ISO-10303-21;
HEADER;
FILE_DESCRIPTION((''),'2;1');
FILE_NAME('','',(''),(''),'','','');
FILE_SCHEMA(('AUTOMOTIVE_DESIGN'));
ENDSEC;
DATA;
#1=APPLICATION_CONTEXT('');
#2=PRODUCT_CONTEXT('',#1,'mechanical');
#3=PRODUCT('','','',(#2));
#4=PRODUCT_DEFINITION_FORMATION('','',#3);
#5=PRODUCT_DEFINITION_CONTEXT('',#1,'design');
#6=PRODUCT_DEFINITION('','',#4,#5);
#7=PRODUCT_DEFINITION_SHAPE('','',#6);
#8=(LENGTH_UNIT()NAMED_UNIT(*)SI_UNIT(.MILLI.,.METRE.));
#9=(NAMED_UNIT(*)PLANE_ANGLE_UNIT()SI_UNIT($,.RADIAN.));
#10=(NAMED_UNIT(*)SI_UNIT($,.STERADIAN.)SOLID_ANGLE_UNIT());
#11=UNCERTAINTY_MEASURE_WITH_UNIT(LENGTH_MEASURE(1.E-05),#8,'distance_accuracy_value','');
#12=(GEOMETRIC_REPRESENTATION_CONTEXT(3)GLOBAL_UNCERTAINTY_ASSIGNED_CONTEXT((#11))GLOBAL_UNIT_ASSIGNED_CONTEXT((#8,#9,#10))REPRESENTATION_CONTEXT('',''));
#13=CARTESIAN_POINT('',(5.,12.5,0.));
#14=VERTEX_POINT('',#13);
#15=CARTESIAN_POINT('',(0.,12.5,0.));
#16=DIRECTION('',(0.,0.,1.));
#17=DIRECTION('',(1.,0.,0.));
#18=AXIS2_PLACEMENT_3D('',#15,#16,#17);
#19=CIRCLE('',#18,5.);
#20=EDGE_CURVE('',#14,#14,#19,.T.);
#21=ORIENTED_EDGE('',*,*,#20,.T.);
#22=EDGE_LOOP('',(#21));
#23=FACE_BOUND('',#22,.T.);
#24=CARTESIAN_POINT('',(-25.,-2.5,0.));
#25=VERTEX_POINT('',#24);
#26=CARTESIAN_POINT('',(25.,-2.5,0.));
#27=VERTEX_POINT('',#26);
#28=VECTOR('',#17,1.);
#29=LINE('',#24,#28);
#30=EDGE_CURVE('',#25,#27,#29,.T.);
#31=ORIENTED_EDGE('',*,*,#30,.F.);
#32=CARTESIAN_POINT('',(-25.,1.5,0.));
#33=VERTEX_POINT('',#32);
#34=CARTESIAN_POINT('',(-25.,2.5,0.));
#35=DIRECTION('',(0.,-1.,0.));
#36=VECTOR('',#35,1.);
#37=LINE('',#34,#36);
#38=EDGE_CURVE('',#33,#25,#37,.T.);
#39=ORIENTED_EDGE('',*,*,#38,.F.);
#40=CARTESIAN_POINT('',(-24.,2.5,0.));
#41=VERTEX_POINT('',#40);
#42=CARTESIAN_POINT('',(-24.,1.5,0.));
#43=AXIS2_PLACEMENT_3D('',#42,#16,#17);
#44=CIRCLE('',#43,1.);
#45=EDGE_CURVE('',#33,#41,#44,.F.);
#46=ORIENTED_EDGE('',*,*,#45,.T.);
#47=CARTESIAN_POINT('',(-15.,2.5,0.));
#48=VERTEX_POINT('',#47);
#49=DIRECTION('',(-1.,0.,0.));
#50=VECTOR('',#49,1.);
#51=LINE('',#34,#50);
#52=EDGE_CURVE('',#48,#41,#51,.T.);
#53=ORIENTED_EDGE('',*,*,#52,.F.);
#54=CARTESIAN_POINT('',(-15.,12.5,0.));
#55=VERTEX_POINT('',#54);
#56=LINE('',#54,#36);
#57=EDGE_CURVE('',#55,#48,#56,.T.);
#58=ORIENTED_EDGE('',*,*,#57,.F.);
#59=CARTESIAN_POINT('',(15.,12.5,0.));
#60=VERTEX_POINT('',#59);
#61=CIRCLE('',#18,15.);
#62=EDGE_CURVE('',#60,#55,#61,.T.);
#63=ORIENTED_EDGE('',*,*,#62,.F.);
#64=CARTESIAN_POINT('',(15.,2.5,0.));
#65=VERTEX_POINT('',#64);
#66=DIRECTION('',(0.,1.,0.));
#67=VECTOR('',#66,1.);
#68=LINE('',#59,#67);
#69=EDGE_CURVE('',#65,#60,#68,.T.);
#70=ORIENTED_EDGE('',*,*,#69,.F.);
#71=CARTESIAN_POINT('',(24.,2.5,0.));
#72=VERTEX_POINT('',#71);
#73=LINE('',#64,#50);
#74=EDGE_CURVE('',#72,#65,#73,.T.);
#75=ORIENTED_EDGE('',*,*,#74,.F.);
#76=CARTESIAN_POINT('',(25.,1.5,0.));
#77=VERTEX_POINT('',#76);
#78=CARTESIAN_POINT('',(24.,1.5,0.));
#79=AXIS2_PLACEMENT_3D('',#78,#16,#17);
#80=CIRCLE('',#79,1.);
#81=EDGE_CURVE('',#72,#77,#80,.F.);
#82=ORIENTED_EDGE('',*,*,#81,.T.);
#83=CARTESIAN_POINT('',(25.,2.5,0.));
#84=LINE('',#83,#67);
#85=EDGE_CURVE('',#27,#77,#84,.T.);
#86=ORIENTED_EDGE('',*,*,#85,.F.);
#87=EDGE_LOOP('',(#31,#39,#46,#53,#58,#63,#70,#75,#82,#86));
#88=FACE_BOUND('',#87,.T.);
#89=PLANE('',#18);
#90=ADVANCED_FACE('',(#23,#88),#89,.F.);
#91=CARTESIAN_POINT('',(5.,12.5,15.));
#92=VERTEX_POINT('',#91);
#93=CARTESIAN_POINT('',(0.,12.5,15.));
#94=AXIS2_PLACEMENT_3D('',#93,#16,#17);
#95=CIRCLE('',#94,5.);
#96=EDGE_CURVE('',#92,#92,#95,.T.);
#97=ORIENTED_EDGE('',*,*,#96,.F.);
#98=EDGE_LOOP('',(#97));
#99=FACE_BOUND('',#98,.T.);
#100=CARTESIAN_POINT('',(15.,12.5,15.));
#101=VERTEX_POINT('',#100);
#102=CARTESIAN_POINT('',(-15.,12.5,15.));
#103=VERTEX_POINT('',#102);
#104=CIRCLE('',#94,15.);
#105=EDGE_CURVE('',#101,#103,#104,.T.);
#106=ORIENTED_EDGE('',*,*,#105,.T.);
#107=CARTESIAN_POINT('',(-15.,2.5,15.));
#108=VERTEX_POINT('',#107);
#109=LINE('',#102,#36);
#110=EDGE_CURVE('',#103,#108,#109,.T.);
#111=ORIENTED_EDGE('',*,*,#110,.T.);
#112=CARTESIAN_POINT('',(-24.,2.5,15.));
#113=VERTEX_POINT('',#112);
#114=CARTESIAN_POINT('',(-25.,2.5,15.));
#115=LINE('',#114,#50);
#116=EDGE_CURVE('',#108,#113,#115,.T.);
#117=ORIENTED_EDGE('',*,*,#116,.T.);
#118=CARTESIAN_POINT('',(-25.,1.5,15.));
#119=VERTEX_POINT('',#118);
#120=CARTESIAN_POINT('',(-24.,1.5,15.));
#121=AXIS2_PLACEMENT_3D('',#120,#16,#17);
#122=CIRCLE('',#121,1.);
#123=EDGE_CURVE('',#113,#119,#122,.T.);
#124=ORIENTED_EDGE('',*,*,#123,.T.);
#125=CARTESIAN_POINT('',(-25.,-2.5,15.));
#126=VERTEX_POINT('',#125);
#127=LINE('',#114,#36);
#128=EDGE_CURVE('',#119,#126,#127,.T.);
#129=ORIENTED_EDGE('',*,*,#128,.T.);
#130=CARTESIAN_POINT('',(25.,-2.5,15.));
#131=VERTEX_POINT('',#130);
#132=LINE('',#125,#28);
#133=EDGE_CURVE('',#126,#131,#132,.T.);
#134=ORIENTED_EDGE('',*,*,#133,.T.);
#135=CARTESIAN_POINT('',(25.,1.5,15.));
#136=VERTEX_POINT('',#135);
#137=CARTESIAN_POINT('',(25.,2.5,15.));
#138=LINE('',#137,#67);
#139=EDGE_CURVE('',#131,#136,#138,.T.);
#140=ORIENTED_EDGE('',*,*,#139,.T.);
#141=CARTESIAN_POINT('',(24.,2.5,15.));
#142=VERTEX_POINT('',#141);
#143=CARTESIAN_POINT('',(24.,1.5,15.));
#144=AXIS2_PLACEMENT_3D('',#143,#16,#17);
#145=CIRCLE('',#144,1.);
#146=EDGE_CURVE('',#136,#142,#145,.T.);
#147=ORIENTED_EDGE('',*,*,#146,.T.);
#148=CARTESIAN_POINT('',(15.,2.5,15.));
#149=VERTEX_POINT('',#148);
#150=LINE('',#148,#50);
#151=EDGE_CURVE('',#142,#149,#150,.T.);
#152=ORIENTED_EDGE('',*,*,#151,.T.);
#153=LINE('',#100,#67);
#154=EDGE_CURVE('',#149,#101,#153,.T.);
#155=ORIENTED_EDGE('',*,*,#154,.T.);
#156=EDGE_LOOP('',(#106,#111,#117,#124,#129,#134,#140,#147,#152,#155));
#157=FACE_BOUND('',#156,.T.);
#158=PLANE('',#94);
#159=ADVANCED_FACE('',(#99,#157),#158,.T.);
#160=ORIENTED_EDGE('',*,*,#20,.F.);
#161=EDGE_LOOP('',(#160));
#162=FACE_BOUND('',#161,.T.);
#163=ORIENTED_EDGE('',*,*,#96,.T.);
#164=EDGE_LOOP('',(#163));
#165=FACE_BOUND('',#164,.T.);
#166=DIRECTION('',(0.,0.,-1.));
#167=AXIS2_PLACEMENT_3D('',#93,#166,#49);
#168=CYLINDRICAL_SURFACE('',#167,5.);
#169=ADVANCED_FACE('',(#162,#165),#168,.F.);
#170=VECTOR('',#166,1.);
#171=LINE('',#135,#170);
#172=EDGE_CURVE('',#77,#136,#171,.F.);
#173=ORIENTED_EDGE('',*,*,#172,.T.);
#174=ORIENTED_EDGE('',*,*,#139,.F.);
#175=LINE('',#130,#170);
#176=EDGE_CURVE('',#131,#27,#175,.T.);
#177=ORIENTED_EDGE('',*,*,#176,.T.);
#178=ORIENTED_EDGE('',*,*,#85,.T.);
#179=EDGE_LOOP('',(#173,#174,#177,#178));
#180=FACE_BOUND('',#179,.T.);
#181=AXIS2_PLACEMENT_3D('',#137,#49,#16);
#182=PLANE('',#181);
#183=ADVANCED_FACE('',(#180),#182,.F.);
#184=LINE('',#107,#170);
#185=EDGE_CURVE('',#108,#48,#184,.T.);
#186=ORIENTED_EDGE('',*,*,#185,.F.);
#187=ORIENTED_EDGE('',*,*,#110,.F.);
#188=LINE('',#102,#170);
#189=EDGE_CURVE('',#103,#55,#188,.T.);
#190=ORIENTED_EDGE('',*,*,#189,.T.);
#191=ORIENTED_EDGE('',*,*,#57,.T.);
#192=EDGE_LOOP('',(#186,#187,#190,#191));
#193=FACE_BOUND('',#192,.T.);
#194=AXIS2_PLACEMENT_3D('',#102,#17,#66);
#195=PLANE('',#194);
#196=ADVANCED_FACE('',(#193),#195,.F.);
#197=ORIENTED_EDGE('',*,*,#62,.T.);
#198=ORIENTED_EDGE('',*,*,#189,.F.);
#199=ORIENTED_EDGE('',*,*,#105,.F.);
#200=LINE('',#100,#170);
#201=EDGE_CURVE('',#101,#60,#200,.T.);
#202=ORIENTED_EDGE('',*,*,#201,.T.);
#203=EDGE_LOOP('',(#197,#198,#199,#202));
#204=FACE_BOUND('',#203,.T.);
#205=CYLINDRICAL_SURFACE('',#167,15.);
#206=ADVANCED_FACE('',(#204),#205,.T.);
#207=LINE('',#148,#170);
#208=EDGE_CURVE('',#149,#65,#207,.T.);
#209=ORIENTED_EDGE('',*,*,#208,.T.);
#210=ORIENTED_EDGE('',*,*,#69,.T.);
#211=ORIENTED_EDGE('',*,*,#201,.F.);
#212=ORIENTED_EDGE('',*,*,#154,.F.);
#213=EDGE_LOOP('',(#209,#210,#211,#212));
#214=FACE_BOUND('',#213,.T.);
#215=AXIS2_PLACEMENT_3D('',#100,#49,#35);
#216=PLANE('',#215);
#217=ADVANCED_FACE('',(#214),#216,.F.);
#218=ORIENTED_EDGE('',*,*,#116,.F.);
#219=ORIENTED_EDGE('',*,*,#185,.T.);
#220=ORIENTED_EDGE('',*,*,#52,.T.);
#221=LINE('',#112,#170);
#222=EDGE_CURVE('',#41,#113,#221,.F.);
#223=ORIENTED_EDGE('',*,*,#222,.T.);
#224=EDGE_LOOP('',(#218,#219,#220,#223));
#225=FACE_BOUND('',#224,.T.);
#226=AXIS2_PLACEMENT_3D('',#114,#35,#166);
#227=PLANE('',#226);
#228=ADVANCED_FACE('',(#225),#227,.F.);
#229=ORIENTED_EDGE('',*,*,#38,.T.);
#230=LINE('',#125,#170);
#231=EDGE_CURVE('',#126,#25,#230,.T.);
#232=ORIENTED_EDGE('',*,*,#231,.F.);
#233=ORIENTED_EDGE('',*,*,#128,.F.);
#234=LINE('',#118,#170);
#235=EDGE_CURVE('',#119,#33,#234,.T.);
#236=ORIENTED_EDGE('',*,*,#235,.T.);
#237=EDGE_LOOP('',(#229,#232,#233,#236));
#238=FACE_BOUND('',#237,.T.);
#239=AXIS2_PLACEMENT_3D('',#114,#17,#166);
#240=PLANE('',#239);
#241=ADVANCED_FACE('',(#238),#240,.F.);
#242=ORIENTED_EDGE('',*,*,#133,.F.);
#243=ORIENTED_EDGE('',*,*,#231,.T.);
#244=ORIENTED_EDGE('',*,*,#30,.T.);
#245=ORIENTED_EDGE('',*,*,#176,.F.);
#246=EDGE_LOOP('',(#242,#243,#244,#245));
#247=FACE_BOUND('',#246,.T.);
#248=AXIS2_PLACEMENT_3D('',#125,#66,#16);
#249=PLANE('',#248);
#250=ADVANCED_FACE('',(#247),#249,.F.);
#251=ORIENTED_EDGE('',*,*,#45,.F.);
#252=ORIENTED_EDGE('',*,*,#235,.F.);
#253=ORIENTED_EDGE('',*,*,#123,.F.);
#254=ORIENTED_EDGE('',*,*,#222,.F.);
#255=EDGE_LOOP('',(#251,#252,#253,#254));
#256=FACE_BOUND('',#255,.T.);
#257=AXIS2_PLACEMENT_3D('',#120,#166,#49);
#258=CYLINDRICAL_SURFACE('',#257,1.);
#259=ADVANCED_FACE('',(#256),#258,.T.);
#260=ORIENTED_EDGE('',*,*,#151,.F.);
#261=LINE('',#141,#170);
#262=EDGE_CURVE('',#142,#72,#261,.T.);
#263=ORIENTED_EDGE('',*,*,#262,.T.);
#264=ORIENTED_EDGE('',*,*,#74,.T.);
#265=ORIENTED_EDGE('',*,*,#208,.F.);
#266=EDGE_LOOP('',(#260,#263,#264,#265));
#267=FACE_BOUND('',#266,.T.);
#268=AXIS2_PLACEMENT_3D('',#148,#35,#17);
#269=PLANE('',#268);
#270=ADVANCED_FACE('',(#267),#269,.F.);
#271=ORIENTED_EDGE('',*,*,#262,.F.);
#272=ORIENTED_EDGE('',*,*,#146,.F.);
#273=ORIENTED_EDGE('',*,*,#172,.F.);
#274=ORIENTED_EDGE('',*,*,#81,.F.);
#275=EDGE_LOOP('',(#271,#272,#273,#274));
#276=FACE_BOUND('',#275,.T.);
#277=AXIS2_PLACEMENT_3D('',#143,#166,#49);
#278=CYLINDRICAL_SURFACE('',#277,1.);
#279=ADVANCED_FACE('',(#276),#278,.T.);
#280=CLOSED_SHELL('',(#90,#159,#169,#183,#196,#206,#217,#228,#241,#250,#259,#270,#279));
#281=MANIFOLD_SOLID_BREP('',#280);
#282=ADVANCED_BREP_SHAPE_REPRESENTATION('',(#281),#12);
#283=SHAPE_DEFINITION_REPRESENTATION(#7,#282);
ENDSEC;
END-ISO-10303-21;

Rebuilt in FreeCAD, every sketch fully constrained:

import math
import FreeCAD as App
import Part
import Sketcher
Q = App.Units.Quantity


def edges_at(feature, points):
    """Names of the edges that pass closest to the given points."""
    edges = feature.Shape.Edges
    near = lambda p: min(range(len(edges)), key=lambda i: edges[i].distToShape(Part.Vertex(*p))[0])
    return sorted({f"Edge{near(p) + 1}" for p in points})

doc = App.newDocument("Part")
params = doc.addObject("Spreadsheet::Sheet", "Params")
for row, (alias, value) in enumerate([
    ("sketch1_diameter", "10 mm"),
    ("sketch1_radius", "15 mm"),
    ("sketch1_width", "10 mm"),
    ("sketch1_height", "5 mm"),
    ("pad1_length", "15 mm"),
    ("fillet_radius", "1 mm"),
], start=1):
    params.set(f"A{row}", alias)
    params.set(f"B{row}", "=" + value)
    params.setAlias(f"B{row}", alias)

body = doc.addObject("PartDesign::Body", "Body")

# Sketch on XY plane
sketch1 = body.newObject("Sketcher::SketchObject", "Sketch")
sketch1.AttachmentSupport = (doc.getObject("XY_Plane"), [""])
sketch1.MapMode = "FlatFace"
sketch1.addGeometry([
    Part.LineSegment(App.Vector(25, 2, 0), App.Vector(15, 2, 0)),  # 0
    Part.LineSegment(App.Vector(15, 2, 0), App.Vector(15, 12, 0)),  # 1
    Part.ArcOfCircle(Part.Circle(App.Vector(0, 12, 0), App.Vector(0, 0, 1), 15), math.radians(0), math.radians(180)),  # 2
    Part.LineSegment(App.Vector(-15, 12, 0), App.Vector(-15, 2, 0)),  # 3
    Part.LineSegment(App.Vector(-15, 2, 0), App.Vector(-25, 2, 0)),  # 4
    Part.LineSegment(App.Vector(-25, 2, 0), App.Vector(-25, -2, 0)),  # 5
    Part.LineSegment(App.Vector(-25, -2, 0), App.Vector(25, -2, 0)),  # 6
    Part.LineSegment(App.Vector(25, -2, 0), App.Vector(25, 2, 0)),  # 7
    Part.Circle(App.Vector(0, 12, 0), App.Vector(0, 0, 1), 5),  # 8
], False)
sketch1.addConstraint([
    Sketcher.Constraint("Coincident", 0, 2, 1, 1),
    Sketcher.Constraint("Tangent", 1, 2, 2, 1),
    Sketcher.Constraint("Tangent", 2, 2, 3, 1),
    Sketcher.Constraint("Coincident", 3, 2, 4, 1),
    Sketcher.Constraint("Coincident", 4, 2, 5, 1),
    Sketcher.Constraint("Coincident", 5, 2, 6, 1),
    Sketcher.Constraint("Coincident", 6, 2, 7, 1),
    Sketcher.Constraint("Coincident", 7, 2, 0, 1),
    Sketcher.Constraint("Horizontal", 0),
    Sketcher.Constraint("Vertical", 1),
    Sketcher.Constraint("Vertical", 3),
    Sketcher.Constraint("Horizontal", 4),
    Sketcher.Constraint("Vertical", 5),
    Sketcher.Constraint("Horizontal", 6),
    Sketcher.Constraint("Vertical", 7),
    Sketcher.Constraint("Coincident", 8, 3, 2, 3),
    Sketcher.Constraint("Symmetric", 4, 2, 6, 2, -1, 1),
    Sketcher.Constraint("Symmetric", 0, 2, 3, 2, -2),
    Sketcher.Constraint("Equal", 4, 1),
    Sketcher.Constraint("Diameter", 8, Q("10 mm")),
    Sketcher.Constraint("Radius", 2, Q("15 mm")),
    Sketcher.Constraint("DistanceX", 0, 2, 0, 1, Q("10 mm")),
    Sketcher.Constraint("DistanceY", 5, 2, 5, 1, Q("5 mm")),
])
sketch1.setExpression("Constraints[19]", "Params.sketch1_diameter")
sketch1.setExpression("Constraints[20]", "Params.sketch1_radius")
sketch1.setExpression("Constraints[21]", "Params.sketch1_width")
sketch1.setExpression("Constraints[22]", "Params.sketch1_height")
pad1 = body.newObject("PartDesign::Pad", "Pad")
pad1.Profile = sketch1
pad1.setExpression("Length", "Params.pad1_length")
doc.recompute()

fillet = body.newObject("PartDesign::Fillet", "Fillet")
fillet.Base = (pad1, edges_at(pad1, [(-25, 2.5, 7.5), (25, 2.5, 7.5)]))
fillet.setExpression("Radius", "Params.fillet_radius")

doc.recompute()
